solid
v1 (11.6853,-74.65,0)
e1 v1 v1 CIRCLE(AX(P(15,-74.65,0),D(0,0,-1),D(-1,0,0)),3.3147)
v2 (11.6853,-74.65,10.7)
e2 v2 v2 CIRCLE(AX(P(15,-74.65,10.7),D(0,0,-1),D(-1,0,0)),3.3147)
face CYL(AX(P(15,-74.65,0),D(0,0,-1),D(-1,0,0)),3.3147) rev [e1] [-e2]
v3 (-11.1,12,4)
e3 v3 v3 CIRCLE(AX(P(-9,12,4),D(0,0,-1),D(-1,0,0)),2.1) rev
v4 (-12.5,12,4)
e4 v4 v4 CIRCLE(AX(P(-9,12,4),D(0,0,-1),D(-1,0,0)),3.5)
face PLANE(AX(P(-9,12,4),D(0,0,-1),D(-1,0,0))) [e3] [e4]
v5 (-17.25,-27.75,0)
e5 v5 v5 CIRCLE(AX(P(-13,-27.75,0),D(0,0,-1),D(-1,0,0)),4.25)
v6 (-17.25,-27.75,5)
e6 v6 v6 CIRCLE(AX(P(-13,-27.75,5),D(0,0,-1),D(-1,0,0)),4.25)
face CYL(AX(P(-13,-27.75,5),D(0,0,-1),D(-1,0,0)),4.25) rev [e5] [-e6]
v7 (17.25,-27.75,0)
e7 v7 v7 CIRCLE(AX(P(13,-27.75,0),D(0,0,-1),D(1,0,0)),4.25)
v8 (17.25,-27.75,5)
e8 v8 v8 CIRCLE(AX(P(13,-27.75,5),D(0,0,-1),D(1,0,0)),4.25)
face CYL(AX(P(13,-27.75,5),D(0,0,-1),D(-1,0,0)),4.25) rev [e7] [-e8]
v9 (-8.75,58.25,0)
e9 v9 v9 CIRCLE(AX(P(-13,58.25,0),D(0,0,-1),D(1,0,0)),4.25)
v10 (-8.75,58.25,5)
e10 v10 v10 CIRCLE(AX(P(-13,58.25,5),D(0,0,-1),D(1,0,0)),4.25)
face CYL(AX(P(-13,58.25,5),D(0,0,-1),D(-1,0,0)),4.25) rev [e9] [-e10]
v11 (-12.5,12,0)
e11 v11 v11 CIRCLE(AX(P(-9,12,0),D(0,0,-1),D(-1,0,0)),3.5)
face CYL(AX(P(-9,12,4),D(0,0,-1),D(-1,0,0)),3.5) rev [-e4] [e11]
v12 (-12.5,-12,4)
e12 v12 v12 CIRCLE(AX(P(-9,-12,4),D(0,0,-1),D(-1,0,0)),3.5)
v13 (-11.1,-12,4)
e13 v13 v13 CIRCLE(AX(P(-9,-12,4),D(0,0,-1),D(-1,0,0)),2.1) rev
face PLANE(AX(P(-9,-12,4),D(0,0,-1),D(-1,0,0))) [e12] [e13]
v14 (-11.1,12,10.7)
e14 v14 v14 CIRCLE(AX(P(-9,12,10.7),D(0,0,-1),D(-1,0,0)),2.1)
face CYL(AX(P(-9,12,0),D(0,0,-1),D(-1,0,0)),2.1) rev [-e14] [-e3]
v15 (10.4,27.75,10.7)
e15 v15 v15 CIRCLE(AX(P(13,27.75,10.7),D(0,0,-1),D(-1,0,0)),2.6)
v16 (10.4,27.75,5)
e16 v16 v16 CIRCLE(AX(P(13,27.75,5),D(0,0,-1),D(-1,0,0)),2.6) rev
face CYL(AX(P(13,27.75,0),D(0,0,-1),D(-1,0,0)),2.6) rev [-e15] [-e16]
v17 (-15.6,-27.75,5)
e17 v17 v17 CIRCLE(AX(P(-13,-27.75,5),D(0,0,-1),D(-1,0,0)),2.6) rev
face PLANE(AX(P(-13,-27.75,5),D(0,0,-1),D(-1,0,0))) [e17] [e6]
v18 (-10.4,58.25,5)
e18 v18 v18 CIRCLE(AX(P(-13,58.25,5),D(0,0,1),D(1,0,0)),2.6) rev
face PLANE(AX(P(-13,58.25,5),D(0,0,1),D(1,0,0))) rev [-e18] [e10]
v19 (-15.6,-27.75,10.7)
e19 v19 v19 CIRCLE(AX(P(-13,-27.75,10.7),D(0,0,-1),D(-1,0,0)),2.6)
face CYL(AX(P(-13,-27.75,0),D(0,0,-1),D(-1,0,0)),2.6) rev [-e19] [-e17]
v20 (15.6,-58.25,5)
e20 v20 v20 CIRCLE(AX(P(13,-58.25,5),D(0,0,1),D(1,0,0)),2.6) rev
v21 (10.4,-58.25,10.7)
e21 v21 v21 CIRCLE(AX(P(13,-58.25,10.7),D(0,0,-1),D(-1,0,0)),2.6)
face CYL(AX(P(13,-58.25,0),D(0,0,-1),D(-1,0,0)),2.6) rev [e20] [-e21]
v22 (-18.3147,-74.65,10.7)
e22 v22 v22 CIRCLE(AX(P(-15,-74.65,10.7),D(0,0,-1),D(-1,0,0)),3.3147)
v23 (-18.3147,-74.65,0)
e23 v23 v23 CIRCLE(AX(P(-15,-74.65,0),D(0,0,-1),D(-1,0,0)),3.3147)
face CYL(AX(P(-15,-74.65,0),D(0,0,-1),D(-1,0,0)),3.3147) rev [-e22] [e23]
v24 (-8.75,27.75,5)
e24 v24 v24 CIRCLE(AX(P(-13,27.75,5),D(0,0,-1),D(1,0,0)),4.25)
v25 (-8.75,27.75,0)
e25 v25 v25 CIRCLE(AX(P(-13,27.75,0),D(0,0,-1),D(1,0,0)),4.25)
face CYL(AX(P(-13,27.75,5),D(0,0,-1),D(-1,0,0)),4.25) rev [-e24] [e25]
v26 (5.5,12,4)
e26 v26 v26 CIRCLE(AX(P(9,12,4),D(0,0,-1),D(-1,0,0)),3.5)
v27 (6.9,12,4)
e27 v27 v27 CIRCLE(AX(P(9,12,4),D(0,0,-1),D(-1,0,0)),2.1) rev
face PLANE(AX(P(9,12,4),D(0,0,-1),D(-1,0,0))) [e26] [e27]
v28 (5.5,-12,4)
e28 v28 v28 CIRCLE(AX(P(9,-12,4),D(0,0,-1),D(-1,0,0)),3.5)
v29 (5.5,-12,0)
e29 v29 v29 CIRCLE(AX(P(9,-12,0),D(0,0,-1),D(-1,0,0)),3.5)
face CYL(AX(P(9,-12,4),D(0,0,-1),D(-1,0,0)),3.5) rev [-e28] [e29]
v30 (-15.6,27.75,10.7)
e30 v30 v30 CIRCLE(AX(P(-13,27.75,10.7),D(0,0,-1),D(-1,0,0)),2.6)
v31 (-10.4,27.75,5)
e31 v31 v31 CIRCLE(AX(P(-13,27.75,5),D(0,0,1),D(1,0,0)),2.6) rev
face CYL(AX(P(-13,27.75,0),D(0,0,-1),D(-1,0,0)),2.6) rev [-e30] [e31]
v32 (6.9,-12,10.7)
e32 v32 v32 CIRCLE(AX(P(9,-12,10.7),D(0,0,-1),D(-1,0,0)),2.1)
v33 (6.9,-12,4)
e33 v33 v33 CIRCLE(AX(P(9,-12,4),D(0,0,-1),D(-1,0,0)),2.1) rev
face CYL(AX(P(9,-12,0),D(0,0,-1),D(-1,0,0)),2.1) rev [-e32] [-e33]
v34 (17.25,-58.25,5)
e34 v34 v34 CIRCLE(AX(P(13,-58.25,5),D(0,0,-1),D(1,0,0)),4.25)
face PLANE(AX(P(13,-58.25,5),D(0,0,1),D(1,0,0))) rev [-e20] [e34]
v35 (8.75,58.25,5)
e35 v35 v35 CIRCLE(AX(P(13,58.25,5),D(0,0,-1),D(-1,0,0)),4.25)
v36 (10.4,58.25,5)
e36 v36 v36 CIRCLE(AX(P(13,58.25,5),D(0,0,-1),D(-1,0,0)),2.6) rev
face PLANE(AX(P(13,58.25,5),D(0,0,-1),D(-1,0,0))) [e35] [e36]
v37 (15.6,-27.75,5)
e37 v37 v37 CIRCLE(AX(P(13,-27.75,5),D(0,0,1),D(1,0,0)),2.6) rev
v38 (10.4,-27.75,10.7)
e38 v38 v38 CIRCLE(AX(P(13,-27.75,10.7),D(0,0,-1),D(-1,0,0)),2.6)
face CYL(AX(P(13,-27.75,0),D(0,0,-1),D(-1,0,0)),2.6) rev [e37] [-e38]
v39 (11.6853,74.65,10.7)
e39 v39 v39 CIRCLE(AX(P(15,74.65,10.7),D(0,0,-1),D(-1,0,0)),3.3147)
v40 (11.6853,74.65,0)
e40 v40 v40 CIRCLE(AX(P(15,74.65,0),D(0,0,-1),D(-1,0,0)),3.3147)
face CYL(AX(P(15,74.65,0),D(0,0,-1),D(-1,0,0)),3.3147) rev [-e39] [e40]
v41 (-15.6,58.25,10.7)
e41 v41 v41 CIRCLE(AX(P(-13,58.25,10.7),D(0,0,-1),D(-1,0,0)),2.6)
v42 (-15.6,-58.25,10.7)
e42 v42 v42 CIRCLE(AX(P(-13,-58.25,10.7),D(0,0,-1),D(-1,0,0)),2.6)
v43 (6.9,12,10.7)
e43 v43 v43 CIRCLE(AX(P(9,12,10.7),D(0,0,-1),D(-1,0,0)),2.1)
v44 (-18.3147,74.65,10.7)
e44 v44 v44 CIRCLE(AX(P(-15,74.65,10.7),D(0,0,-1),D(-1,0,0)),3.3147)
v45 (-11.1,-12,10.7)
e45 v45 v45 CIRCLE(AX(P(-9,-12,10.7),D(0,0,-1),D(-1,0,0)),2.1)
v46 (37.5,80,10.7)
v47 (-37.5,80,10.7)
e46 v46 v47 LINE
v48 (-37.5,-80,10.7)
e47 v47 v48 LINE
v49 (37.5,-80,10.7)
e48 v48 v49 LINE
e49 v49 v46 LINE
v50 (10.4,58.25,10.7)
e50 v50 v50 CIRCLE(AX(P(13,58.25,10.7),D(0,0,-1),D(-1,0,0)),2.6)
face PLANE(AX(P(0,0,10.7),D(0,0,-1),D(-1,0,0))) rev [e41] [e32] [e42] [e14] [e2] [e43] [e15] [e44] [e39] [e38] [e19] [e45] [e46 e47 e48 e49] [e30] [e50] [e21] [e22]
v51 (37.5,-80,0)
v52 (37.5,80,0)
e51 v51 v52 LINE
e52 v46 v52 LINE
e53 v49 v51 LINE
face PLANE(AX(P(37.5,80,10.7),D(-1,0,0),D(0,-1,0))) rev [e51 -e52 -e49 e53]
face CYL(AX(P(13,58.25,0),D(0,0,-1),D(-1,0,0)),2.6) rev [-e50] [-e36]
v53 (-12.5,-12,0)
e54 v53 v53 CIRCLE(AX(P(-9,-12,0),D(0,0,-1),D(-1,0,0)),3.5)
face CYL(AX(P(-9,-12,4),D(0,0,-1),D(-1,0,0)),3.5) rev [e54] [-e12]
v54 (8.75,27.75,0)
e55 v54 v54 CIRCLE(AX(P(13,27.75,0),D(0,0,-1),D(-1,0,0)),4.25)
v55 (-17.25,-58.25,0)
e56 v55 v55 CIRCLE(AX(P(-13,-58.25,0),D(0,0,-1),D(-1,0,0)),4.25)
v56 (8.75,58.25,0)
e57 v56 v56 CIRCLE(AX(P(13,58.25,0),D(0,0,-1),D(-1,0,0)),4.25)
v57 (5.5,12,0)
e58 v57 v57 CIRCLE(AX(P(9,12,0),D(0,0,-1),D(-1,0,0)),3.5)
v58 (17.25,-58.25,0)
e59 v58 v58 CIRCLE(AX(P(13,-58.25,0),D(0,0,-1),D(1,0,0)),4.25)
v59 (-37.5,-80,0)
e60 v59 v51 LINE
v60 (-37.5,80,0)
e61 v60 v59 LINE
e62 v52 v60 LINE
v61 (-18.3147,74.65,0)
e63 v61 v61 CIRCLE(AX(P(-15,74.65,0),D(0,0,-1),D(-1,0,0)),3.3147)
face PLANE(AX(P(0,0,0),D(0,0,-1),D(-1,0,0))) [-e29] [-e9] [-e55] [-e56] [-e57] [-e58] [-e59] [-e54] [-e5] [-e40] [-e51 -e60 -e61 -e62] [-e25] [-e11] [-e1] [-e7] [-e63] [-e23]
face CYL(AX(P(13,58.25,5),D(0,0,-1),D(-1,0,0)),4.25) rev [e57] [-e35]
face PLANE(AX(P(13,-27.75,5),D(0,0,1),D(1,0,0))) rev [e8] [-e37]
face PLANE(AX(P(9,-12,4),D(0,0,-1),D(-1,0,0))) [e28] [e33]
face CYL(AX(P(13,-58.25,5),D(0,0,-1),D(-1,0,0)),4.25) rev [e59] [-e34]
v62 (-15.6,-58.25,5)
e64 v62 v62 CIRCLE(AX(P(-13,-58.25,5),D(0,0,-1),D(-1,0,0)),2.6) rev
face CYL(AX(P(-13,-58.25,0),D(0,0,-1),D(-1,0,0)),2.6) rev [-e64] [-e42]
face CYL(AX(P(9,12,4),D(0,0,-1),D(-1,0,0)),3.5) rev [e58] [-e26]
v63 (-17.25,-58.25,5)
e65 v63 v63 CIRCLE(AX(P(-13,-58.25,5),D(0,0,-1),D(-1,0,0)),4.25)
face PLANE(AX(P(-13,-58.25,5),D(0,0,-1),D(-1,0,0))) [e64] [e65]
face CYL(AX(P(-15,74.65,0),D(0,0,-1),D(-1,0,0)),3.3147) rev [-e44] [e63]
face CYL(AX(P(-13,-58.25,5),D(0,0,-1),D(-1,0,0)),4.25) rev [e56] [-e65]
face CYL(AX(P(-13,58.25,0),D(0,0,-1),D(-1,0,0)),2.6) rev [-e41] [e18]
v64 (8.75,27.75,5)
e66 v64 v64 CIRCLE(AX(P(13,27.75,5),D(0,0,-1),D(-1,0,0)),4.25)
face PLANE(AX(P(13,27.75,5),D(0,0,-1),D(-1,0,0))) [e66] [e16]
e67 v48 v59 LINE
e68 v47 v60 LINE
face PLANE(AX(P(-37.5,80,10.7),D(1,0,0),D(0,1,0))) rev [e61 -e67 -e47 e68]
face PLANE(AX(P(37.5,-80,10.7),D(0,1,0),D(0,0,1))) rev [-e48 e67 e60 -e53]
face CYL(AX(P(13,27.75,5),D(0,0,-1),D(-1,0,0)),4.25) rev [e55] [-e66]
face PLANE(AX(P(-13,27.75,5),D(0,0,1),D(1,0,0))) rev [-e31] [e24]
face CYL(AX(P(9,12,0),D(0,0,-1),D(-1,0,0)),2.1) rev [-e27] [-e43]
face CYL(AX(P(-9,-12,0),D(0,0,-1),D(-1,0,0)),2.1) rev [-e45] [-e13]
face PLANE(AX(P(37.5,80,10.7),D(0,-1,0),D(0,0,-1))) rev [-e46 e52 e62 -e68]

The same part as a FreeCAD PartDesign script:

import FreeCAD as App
import Part
import Sketcher

V = App.Vector
Q = App.Units.Quantity

doc = App.newDocument("Part")
params = doc.addObject("Spreadsheet::Sheet", "Params")
for row, (alias, value) in enumerate([
    ("sketch1_width", "75 mm"),
    ("sketch1_height", "160 mm"),
    ("pad1_length", "10.7 mm"),
    ("hole_diameter", "6.6294 mm"),
    ("hole_depth", "15 mm"),
    ("sketch3_diameter", "5.2 mm"),
    ("hole2_diameter", "5.2 mm"),
    ("hole2_depth", "15 mm"),
    ("sketch4_diameter", "4.2 mm"),
    ("hole3_diameter", "4.2 mm"),
    ("hole3_depth", "15 mm"),
    ("sketch5_diameter", "8.5 mm"),
    ("pocket1_length", "5 mm"),
    ("sketch6_diameter", "7 mm"),
    ("pocket2_length", "4 mm"),
], start=1):
    params.set(f"A{row}", alias)
    params.set(f"B{row}", "=" + value)
    params.setAlias(f"B{row}", alias)

body = doc.addObject("PartDesign::Body", "Body")

# Sketch on XY plane
sketch1 = body.newObject("Sketcher::SketchObject", "Sketch")
sketch1.AttachmentSupport = (doc.getObject("XY_Plane"), [""])
sketch1.MapMode = "FlatFace"
sketch1.addGeometry([
    Part.LineSegment(V(-38, 80, 0), V(-38, -80, 0)),
    Part.LineSegment(V(-38, -80, 0), V(38, -80, 0)),
    Part.LineSegment(V(38, -80, 0), V(38, 80, 0)),
    Part.LineSegment(V(38, 80, 0), V(-38, 80, 0)),
], False)
sketch1.addConstraint([
    Sketcher.Constraint("Coincident", 0, 2, 1, 1),
    Sketcher.Constraint("Coincident", 1, 2, 2, 1),
    Sketcher.Constraint("Coincident", 2, 2, 3, 1),
    Sketcher.Constraint("Coincident", 3, 2, 0, 1),
    Sketcher.Constraint("Vertical", 0),
    Sketcher.Constraint("Horizontal", 1),
    Sketcher.Constraint("Vertical", 2),
    Sketcher.Constraint("Horizontal", 3),
    Sketcher.Constraint("Symmetric", 0, 2, 2, 2, -1, 1),
    Sketcher.Constraint("DistanceX", 1, 1, 1, 2, Q("75 mm")),
    Sketcher.Constraint("DistanceY", 0, 2, 0, 1, Q("160 mm")),
])
sketch1.setExpression("Constraints[9]", "Params.sketch1_width")
sketch1.setExpression("Constraints[10]", "Params.sketch1_height")
pad1 = body.newObject("PartDesign::Pad", "Pad")
pad1.Profile = sketch1
pad1.setExpression("Length", "Params.pad1_length")

# Sketch on XY plane
sketch2 = body.newObject("Sketcher::SketchObject", "Sketch001")
sketch2.AttachmentSupport = (doc.getObject("XY_Plane"), [""])
sketch2.MapMode = "FlatFace"
sketch2.addGeometry([
    Part.Circle(V(-15, 74.7, 0), V(0, 0, 1), 3.3),
    Part.Circle(V(15, 74.7, 0), V(0, 0, 1), 3.3),
    Part.Circle(V(-15, -74.7, 0), V(0, 0, 1), 3.3),
    Part.Circle(V(15, -74.7, 0), V(0, 0, 1), 3.3),
], False)
sketch2.addConstraint([
    Sketcher.Constraint("Equal", 0, 1),
    Sketcher.Constraint("Equal", 1, 2),
    Sketcher.Constraint("Equal", 2, 3),
    Sketcher.Constraint("Symmetric", 1, 3, 2, 3, -1, 1),
    Sketcher.Constraint("Symmetric", 0, 3, 3, 3, -1, 1),
    Sketcher.Constraint("Symmetric", 0, 3, 1, 3, -2),
    Sketcher.Constraint("DistanceX", 0, 3, -1, 1, Q("15 mm")),
    Sketcher.Constraint("Diameter", 0, Q("6.6294 mm")),
    Sketcher.Constraint("DistanceY", 2, 3, 0, 3, Q("149.3 mm")),
])
doc.recompute()
hole = body.newObject("PartDesign::Hole", "Hole")
hole.Profile = sketch2
hole.ThreadType = "None"
hole.setExpression("Diameter", "Params.hole_diameter")
hole.DepthType = "Dimension"
hole.setExpression("Depth", "Params.hole_depth")
hole.DrillPoint = "Angled"
hole.DrillPointAngle = 118
hole.Reversed = True

# Sketch on XY plane
sketch3 = body.newObject("Sketcher::SketchObject", "Sketch002")
sketch3.AttachmentSupport = (doc.getObject("XY_Plane"), [""])
sketch3.MapMode = "FlatFace"
sketch3.addGeometry([
    Part.Circle(V(-13, 58.2, 0), V(0, 0, 1), 2.6),  # 0
    Part.Circle(V(-13, 27.8, 0), V(0, 0, 1), 2.6),  # 1
    Part.Circle(V(13, 27.8, 0), V(0, 0, 1), 2.6),  # 2
    Part.Circle(V(13, 58.2, 0), V(0, 0, 1), 2.6),  # 3
    Part.Circle(V(-13, -27.8, 0), V(0, 0, 1), 2.6),  # 4
    Part.Circle(V(13, -27.8, 0), V(0, 0, 1), 2.6),  # 5
    Part.Circle(V(-13, -58.2, 0), V(0, 0, 1), 2.6),  # 6
    Part.Circle(V(13, -58.2, 0), V(0, 0, 1), 2.6),  # 7
], False)
sketch3.addConstraint([
    Sketcher.Constraint("Equal", 0, 1),
    Sketcher.Constraint("Equal", 1, 2),
    Sketcher.Constraint("Equal", 2, 3),
    Sketcher.Constraint("Equal", 3, 4),
    Sketcher.Constraint("Equal", 4, 5),
    Sketcher.Constraint("Equal", 5, 6),
    Sketcher.Constraint("Equal", 6, 7),
    Sketcher.Constraint("Symmetric", 2, 3, 4, 3, -1, 1),
    Sketcher.Constraint("Symmetric", 1, 3, 5, 3, -1, 1),
    Sketcher.Constraint("Symmetric", 3, 3, 6, 3, -1, 1),
    Sketcher.Constraint("Symmetric", 0, 3, 7, 3, -1, 1),
    Sketcher.Constraint("Symmetric", 1, 3, 2, 3, -2),
    Sketcher.Constraint("Symmetric", 0, 3, 3, 3, -2),
    Sketcher.Constraint("Vertical", 0, 3, 1, 3),
    Sketcher.Constraint("Diameter", 0, Q("5.2 mm")),
    Sketcher.Constraint("DistanceX", 0, 3, -1, 1, Q("13 mm")),
    Sketcher.Constraint("DistanceY", 4, 3, 0, 3, Q("86 mm")),
    Sketcher.Constraint("DistanceY", 1, 3, 0, 3, Q("30.5 mm")),
])
sketch3.setExpression("Constraints[14]", "Params.sketch3_diameter")
doc.recompute()
hole2 = body.newObject("PartDesign::Hole", "Hole001")
hole2.Profile = sketch3
hole2.ThreadType = "None"
hole2.setExpression("Diameter", "Params.hole2_diameter")
hole2.DepthType = "Dimension"
hole2.setExpression("Depth", "Params.hole2_depth")
hole2.DrillPoint = "Angled"
hole2.DrillPointAngle = 118
hole2.Reversed = True

# Sketch on XY plane
sketch4 = body.newObject("Sketcher::SketchObject", "Sketch003")
sketch4.AttachmentSupport = (doc.getObject("XY_Plane"), [""])
sketch4.MapMode = "FlatFace"
sketch4.addGeometry([
    Part.Circle(V(-9, 12, 0), V(0, 0, 1), 2.1),
    Part.Circle(V(9, 12, 0), V(0, 0, 1), 2.1),
    Part.Circle(V(-9, -12, 0), V(0, 0, 1), 2.1),
    Part.Circle(V(9, -12, 0), V(0, 0, 1), 2.1),
], False)
sketch4.addConstraint([
    Sketcher.Constraint("Equal", 0, 1),
    Sketcher.Constraint("Equal", 1, 2),
    Sketcher.Constraint("Equal", 2, 3),
    Sketcher.Constraint("Symmetric", 1, 3, 2, 3, -1, 1),
    Sketcher.Constraint("Symmetric", 0, 3, 3, 3, -1, 1),
    Sketcher.Constraint("Symmetric", 0, 3, 1, 3, -2),
    Sketcher.Constraint("Diameter", 0, Q("4.2 mm")),
    Sketcher.Constraint("DistanceX", 0, 3, -1, 1, Q("9 mm")),
    Sketcher.Constraint("DistanceY", -1, 1, 0, 3, Q("12 mm")),
])
sketch4.setExpression("Constraints[6]", "Params.sketch4_diameter")
doc.recompute()
hole3 = body.newObject("PartDesign::Hole", "Hole002")
hole3.Profile = sketch4
hole3.ThreadType = "None"
hole3.setExpression("Diameter", "Params.hole3_diameter")
hole3.DepthType = "Dimension"
hole3.setExpression("Depth", "Params.hole3_depth")
hole3.DrillPoint = "Angled"
hole3.DrillPointAngle = 118
hole3.Reversed = True

# Sketch on XY plane
sketch5 = body.newObject("Sketcher::SketchObject", "Sketch004")
sketch5.AttachmentSupport = (doc.getObject("XY_Plane"), [""])
sketch5.MapMode = "FlatFace"
sketch5.addGeometry([
    Part.Circle(V(13, 58.2, 0), V(0, 0, 1), 4.2),  # 0
    Part.Circle(V(13, 27.8, 0), V(0, 0, 1), 4.2),  # 1
    Part.Circle(V(-13, 27.8, 0), V(0, 0, 1), 4.2),  # 2
    Part.Circle(V(-13, 58.2, 0), V(0, 0, 1), 4.2),  # 3
    Part.Circle(V(-13, -27.8, 0), V(0, 0, 1), 4.2),  # 4
    Part.Circle(V(13, -27.8, 0), V(0, 0, 1), 4.2),  # 5
    Part.Circle(V(-13, -58.2, 0), V(0, 0, 1), 4.2),  # 6
    Part.Circle(V(13, -58.2, 0), V(0, 0, 1), 4.2),  # 7
], False)
sketch5.addConstraint([
    Sketcher.Constraint("Equal", 0, 1),
    Sketcher.Constraint("Equal", 1, 2),
    Sketcher.Constraint("Equal", 2, 3),
    Sketcher.Constraint("Equal", 3, 4),
    Sketcher.Constraint("Equal", 4, 5),
    Sketcher.Constraint("Equal", 5, 6),
    Sketcher.Constraint("Equal", 6, 7),
    Sketcher.Constraint("Symmetric", 1, 3, 4, 3, -1, 1),
    Sketcher.Constraint("Symmetric", 2, 3, 5, 3, -1, 1),
    Sketcher.Constraint("Symmetric", 0, 3, 6, 3, -1, 1),
    Sketcher.Constraint("Symmetric", 3, 3, 7, 3, -1, 1),
    Sketcher.Constraint("Symmetric", 1, 3, 2, 3, -2),
    Sketcher.Constraint("Symmetric", 0, 3, 3, 3, -2),
    Sketcher.Constraint("Vertical", 0, 3, 1, 3),
    Sketcher.Constraint("Diameter", 0, Q("8.5 mm")),
    Sketcher.Constraint("DistanceX", -1, 1, 0, 3, Q("13 mm")),
    Sketcher.Constraint("DistanceY", 4, 3, 3, 3, Q("86 mm")),
    Sketcher.Constraint("DistanceY", 1, 3, 0, 3, Q("30.5 mm")),
])
sketch5.setExpression("Constraints[14]", "Params.sketch5_diameter")
pocket1 = body.newObject("PartDesign::Pocket", "Pocket")
pocket1.Profile = sketch5
pocket1.setExpression("Length", "Params.pocket1_length")
pocket1.Reversed = True

# Sketch on XY plane
sketch6 = body.newObject("Sketcher::SketchObject", "Sketch005")
sketch6.AttachmentSupport = (doc.getObject("XY_Plane"), [""])
sketch6.MapMode = "FlatFace"
sketch6.addGeometry([
    Part.Circle(V(9, 12, 0), V(0, 0, 1), 3.5),
    Part.Circle(V(-9, 12, 0), V(0, 0, 1), 3.5),
    Part.Circle(V(9, -12, 0), V(0, 0, 1), 3.5),
    Part.Circle(V(-9, -12, 0), V(0, 0, 1), 3.5),
], False)
sketch6.addConstraint([
    Sketcher.Constraint("Equal", 0, 1),
    Sketcher.Constraint("Equal", 1, 2),
    Sketcher.Constraint("Equal", 2, 3),
    Sketcher.Constraint("Symmetric", 1, 3, 2, 3, -1, 1),
    Sketcher.Constraint("Symmetric", 0, 3, 3, 3, -1, 1),
    Sketcher.Constraint("Symmetric", 0, 3, 1, 3, -2),
    Sketcher.Constraint("Diameter", 0, Q("7 mm")),
    Sketcher.Constraint("DistanceX", -1, 1, 0, 3, Q("9 mm")),
    Sketcher.Constraint("DistanceY", -1, 1, 0, 3, Q("12 mm")),
])
sketch6.setExpression("Constraints[6]", "Params.sketch6_diameter")
pocket2 = body.newObject("PartDesign::Pocket", "Pocket001")
pocket2.Profile = sketch6
pocket2.setExpression("Length", "Params.pocket2_length")
pocket2.Reversed = True

doc.recompute()
